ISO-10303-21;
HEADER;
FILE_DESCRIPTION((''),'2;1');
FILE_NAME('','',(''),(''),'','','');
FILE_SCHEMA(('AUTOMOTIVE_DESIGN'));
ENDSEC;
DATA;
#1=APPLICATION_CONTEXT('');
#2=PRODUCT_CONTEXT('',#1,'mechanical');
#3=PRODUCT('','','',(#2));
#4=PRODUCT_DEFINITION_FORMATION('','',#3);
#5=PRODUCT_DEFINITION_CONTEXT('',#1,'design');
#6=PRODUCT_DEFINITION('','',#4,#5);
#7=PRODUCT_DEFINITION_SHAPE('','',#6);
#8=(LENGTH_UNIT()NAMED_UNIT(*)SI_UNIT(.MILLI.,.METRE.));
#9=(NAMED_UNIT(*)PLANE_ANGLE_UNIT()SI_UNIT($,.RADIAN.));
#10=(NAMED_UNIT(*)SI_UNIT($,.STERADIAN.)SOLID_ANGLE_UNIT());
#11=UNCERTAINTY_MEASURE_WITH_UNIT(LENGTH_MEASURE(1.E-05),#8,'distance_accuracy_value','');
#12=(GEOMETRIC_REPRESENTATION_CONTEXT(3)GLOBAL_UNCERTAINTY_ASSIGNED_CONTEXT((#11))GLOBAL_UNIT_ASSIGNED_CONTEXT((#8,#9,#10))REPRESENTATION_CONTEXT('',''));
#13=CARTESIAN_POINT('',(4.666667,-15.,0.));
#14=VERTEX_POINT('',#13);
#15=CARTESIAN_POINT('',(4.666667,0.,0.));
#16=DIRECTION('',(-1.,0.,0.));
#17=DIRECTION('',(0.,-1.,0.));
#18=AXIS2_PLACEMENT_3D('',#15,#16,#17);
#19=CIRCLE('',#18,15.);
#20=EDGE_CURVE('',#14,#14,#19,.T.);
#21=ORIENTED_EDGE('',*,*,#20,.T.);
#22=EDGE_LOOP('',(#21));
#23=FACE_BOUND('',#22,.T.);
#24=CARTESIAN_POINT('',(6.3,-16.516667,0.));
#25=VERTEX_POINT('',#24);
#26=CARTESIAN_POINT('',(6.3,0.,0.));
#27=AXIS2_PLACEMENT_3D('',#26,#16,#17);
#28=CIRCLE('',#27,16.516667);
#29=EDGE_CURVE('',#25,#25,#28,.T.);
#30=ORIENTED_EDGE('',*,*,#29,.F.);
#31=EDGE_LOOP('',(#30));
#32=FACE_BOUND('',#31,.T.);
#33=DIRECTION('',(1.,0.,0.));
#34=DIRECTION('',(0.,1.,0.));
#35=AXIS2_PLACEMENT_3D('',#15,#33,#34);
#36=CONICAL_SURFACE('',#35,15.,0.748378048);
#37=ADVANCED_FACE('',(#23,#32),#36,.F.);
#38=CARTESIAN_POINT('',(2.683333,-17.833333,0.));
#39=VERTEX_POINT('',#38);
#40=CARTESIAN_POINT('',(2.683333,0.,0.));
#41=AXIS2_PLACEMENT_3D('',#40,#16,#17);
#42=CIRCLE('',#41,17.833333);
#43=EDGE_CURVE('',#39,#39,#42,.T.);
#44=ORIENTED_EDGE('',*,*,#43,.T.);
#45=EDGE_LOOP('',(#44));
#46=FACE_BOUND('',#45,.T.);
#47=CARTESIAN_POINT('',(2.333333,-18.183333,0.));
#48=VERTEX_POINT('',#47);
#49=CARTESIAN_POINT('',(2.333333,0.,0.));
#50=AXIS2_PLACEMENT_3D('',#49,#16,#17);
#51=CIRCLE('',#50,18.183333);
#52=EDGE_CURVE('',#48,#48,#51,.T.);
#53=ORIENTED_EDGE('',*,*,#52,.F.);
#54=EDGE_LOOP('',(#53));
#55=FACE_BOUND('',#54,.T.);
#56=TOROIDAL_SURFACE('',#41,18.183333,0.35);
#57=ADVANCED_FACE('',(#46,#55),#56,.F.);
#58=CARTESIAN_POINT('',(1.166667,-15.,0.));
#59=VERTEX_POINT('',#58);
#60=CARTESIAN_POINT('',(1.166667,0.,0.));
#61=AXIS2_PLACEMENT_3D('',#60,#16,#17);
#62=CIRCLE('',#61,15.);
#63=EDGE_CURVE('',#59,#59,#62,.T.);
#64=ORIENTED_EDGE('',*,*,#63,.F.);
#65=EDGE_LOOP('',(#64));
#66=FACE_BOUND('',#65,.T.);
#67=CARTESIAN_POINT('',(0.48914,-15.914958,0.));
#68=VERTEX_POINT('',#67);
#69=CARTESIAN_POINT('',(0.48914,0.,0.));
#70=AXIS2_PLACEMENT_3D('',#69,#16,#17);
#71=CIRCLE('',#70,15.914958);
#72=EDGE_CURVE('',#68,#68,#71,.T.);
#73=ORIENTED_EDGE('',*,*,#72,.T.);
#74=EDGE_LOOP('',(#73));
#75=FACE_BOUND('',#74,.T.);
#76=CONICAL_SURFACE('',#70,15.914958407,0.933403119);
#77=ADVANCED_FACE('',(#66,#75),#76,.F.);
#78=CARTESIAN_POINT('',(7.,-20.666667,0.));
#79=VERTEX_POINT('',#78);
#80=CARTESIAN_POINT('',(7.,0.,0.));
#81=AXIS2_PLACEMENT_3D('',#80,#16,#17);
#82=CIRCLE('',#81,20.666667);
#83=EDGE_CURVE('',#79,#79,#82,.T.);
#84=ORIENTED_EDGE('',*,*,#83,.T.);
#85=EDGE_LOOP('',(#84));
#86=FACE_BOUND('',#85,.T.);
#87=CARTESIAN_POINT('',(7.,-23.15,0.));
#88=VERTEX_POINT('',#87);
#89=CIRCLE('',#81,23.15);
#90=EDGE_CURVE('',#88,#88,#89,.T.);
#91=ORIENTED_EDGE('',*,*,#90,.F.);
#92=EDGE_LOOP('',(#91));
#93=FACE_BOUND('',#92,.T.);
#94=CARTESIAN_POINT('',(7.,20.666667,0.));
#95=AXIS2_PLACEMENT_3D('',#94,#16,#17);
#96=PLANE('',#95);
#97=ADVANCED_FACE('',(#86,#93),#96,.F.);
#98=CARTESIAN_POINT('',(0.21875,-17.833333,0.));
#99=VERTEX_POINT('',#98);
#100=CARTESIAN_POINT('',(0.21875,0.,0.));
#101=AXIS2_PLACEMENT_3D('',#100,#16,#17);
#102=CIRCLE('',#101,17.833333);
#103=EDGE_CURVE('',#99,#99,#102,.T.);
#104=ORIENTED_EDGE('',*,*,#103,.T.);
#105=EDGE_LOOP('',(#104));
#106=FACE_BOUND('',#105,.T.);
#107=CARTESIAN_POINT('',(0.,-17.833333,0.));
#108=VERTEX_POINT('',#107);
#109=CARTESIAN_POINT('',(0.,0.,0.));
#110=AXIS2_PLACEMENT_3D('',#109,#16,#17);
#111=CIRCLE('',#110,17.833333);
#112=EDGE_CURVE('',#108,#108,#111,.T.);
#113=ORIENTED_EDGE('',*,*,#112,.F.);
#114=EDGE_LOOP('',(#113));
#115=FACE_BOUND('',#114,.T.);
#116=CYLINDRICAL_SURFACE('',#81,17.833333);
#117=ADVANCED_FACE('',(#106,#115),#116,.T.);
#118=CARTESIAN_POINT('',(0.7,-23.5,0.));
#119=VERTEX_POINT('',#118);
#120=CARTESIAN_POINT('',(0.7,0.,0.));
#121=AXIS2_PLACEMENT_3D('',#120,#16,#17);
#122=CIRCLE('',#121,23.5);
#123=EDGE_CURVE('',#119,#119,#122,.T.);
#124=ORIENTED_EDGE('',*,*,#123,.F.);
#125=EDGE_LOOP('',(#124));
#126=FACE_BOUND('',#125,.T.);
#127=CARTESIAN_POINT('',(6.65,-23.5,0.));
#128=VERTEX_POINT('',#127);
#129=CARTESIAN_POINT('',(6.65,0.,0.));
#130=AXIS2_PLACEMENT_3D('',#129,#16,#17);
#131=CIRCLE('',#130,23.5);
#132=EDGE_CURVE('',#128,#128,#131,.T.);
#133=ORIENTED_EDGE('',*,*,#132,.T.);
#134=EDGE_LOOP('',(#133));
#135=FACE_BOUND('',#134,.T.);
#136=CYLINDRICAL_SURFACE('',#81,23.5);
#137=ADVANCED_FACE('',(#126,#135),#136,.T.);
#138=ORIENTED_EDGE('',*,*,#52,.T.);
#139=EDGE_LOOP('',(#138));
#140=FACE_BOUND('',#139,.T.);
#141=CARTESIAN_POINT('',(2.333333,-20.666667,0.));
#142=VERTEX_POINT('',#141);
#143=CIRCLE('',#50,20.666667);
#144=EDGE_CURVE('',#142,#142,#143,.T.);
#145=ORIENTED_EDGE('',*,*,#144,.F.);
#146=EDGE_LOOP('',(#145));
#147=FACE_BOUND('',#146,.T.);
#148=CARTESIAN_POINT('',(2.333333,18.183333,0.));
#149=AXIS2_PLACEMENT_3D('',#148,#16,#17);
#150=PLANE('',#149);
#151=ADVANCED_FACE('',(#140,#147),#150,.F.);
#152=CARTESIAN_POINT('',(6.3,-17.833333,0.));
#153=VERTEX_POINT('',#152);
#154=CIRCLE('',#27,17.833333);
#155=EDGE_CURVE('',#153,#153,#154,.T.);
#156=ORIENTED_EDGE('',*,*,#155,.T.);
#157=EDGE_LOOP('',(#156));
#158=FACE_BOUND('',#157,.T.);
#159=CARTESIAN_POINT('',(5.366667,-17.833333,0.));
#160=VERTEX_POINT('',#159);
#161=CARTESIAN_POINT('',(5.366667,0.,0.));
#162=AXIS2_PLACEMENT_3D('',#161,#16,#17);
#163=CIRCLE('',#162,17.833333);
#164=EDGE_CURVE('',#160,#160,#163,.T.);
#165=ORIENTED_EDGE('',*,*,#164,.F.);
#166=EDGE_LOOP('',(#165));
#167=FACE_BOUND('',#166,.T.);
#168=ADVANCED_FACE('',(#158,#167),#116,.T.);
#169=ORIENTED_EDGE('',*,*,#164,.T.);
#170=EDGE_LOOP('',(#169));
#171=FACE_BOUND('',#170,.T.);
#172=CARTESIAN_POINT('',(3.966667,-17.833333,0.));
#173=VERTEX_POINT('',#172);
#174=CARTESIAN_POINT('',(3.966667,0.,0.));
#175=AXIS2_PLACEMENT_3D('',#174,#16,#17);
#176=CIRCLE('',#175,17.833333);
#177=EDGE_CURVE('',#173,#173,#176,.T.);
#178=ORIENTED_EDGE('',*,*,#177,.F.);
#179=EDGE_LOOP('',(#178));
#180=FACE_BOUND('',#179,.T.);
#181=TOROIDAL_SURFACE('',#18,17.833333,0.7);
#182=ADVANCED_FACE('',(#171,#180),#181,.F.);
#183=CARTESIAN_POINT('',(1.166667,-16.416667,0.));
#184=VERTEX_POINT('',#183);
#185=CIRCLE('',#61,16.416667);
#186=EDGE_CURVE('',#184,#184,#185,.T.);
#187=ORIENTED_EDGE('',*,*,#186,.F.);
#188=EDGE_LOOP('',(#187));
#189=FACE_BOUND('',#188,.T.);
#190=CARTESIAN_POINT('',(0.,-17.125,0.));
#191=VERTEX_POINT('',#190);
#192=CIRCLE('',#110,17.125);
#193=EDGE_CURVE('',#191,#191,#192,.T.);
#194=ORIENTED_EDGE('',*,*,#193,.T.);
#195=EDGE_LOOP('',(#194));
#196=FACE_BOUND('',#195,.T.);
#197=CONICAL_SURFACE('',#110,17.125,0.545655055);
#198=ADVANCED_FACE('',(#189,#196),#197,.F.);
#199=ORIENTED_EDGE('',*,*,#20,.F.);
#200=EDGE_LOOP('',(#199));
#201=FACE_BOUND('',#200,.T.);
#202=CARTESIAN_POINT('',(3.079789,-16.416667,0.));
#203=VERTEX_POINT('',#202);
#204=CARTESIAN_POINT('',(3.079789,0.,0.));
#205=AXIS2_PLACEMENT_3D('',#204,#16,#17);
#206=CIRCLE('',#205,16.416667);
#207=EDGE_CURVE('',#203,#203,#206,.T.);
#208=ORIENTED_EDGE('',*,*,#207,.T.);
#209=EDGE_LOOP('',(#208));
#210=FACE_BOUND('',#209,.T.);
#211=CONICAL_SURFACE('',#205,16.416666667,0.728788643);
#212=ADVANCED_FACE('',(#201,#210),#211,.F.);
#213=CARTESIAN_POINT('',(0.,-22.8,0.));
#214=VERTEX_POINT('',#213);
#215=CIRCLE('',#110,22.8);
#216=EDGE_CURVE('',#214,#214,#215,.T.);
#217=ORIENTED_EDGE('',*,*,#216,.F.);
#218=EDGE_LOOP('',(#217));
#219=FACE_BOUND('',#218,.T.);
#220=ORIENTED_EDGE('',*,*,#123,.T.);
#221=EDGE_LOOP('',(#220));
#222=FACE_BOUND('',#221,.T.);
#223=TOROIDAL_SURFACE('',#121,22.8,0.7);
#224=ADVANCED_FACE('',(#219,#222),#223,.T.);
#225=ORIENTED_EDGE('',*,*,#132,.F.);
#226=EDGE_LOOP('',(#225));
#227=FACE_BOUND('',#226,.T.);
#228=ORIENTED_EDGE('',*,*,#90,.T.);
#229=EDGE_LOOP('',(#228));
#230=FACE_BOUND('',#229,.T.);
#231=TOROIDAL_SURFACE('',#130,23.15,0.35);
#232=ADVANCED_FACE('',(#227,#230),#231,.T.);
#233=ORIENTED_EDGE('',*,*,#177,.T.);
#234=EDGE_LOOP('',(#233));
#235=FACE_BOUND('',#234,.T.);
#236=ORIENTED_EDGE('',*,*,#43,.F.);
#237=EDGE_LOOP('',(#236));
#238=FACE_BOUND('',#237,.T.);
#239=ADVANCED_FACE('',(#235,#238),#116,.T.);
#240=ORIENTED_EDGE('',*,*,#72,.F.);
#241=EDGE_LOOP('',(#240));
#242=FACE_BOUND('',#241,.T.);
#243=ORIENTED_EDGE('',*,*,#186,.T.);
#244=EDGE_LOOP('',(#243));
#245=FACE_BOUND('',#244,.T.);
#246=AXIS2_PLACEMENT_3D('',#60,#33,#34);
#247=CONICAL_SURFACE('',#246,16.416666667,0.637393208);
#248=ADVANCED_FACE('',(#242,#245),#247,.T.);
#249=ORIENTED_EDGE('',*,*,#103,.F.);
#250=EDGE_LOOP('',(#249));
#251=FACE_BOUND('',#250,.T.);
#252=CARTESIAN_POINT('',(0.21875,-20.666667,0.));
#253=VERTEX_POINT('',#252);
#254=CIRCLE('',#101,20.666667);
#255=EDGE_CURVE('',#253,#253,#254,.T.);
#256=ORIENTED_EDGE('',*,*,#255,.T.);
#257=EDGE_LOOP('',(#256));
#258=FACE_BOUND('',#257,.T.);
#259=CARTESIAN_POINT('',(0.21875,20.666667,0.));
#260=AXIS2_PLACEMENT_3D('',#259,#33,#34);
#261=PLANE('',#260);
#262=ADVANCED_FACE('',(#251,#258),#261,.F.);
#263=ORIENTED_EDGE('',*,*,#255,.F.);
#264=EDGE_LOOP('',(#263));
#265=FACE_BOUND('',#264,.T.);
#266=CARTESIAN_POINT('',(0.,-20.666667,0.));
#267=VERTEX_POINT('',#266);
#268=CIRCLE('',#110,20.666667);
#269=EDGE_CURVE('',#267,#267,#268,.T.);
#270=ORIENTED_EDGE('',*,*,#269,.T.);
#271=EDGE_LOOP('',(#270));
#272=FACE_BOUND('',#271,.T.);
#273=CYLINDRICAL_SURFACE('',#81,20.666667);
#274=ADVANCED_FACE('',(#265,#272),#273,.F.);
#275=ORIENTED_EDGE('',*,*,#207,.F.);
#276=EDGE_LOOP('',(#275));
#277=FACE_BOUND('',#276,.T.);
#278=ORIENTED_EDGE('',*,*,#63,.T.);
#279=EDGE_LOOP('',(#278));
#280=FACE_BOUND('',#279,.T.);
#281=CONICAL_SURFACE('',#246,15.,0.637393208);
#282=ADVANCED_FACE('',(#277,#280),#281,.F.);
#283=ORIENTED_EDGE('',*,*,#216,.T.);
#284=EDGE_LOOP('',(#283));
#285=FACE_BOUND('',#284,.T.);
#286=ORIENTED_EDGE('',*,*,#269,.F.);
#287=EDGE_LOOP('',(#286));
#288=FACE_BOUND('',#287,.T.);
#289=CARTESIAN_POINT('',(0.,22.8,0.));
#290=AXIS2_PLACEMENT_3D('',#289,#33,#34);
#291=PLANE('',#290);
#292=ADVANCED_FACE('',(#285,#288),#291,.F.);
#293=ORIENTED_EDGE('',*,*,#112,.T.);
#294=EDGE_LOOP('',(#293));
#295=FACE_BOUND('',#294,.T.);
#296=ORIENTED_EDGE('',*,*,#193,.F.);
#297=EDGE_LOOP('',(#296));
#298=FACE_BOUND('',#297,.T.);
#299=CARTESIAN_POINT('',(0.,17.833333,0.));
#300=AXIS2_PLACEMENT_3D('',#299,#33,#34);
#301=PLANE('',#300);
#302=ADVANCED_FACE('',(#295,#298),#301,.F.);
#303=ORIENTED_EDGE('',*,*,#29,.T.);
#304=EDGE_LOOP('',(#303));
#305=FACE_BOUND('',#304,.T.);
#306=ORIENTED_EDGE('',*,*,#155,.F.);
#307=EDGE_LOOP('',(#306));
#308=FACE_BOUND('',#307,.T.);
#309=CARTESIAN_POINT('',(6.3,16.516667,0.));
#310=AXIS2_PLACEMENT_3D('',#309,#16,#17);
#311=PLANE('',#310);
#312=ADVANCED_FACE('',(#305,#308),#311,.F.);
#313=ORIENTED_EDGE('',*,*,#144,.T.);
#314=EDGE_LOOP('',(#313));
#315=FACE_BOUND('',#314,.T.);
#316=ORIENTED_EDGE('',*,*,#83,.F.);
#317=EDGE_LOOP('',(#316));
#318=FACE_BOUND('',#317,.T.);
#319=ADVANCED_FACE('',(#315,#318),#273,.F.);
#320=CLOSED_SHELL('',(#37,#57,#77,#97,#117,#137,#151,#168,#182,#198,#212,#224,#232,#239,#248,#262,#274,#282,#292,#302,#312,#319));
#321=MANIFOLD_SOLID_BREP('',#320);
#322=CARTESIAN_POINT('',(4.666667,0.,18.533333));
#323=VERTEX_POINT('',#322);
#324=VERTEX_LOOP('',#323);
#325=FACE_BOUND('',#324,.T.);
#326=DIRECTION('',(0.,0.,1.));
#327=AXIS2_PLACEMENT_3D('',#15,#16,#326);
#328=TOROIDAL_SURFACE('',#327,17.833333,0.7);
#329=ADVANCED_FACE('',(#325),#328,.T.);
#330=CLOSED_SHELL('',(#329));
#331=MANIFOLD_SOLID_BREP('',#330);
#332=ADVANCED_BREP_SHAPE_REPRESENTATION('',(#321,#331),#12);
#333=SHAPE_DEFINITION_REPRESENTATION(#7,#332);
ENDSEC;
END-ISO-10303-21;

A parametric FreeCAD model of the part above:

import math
import FreeCAD as App
import Part
import Sketcher

doc = App.newDocument("Part")
body = doc.addObject("PartDesign::Body", "Body")

sketch1 = body.newObject("Sketcher::SketchObject", "Sketch")
sketch1.AttachmentSupport = (doc.getObject("XY_Plane"), [""])
sketch1.MapMode = "FlatFace"
sketch1.addGeometry([
    Part.LineSegment(App.Vector(0, 20.67, 0), App.Vector(0.22, 20.67, 0)),
    Part.LineSegment(App.Vector(0.22, 20.67, 0), App.Vector(0.22, 17.83, 0)),
    Part.LineSegment(App.Vector(0.22, 17.83, 0), App.Vector(0, 17.83, 0)),
    Part.LineSegment(App.Vector(0, 17.83, 0), App.Vector(0, 17.12, 0)),
    Part.LineSegment(App.Vector(0, 17.12, 0), App.Vector(1.17, 16.42, 0)),
    Part.LineSegment(App.Vector(1.17, 16.42, 0), App.Vector(0.49, 15.91, 0)),
    Part.LineSegment(App.Vector(0.49, 15.91, 0), App.Vector(1.17, 15, 0)),
    Part.LineSegment(App.Vector(1.17, 15, 0), App.Vector(3.08, 16.42, 0)),
    Part.LineSegment(App.Vector(3.08, 16.42, 0), App.Vector(4.67, 15, 0)),
    Part.LineSegment(App.Vector(4.67, 15, 0), App.Vector(6.3, 16.52, 0)),
    Part.LineSegment(App.Vector(6.3, 16.52, 0), App.Vector(6.3, 17.83, 0)),
    Part.LineSegment(App.Vector(6.3, 17.83, 0), App.Vector(5.37, 17.83, 0)),
    Part.ArcOfCircle(Part.Circle(App.Vector(4.67, 17.83, 0), App.Vector(0, 0, 1), 0.7), math.radians(180), math.radians(360)),
    Part.LineSegment(App.Vector(3.97, 17.83, 0), App.Vector(2.68, 17.83, 0)),
    Part.ArcOfCircle(Part.Circle(App.Vector(2.68, 18.18, 0), App.Vector(0, 0, 1), 0.35), math.radians(-180), math.radians(-90)),
    Part.LineSegment(App.Vector(2.33, 18.18, 0), App.Vector(2.33, 20.67, 0)),
    Part.LineSegment(App.Vector(2.33, 20.67, 0), App.Vector(7, 20.67, 0)),
    Part.LineSegment(App.Vector(7, 20.67, 0), App.Vector(7, 23.15, 0)),
    Part.ArcOfCircle(Part.Circle(App.Vector(6.65, 23.15, 0), App.Vector(0, 0, 1), 0.35), math.radians(0), math.radians(90)),
    Part.LineSegment(App.Vector(6.65, 23.5, 0), App.Vector(0.7, 23.5, 0)),
    Part.ArcOfCircle(Part.Circle(App.Vector(0.7, 22.8, 0), App.Vector(0, 0, 1), 0.7), math.radians(90), math.radians(180)),
    Part.LineSegment(App.Vector(0, 22.8, 0), App.Vector(0, 20.67, 0)),
], False)
sketch1.addConstraint([
    Sketcher.Constraint("Coincident", 0, 2, 1, 1),
    Sketcher.Constraint("Coincident", 1, 2, 2, 1),
    Sketcher.Constraint("Coincident", 2, 2, 3, 1),
    Sketcher.Constraint("Coincident", 3, 2, 4, 1),
    Sketcher.Constraint("Coincident", 4, 2, 5, 1),
    Sketcher.Constraint("Coincident", 5, 2, 6, 1),
    Sketcher.Constraint("Coincident", 6, 2, 7, 1),
    Sketcher.Constraint("Coincident", 7, 2, 8, 1),
    Sketcher.Constraint("Coincident", 8, 2, 9, 1),
    Sketcher.Constraint("Coincident", 9, 2, 10, 1),
    Sketcher.Constraint("Coincident", 10, 2, 11, 1),
    Sketcher.Constraint("Coincident", 11, 2, 12, 2),
    Sketcher.Constraint("Coincident", 12, 1, 13, 1),
    Sketcher.Constraint("Tangent", 13, 2, 14, 2),
    Sketcher.Constraint("Tangent", 14, 1, 15, 1),
    Sketcher.Constraint("Coincident", 15, 2, 16, 1),
    Sketcher.Constraint("Coincident", 16, 2, 17, 1),
    Sketcher.Constraint("Tangent", 17, 2, 18, 1),
    Sketcher.Constraint("Tangent", 18, 2, 19, 1),
    Sketcher.Constraint("Tangent", 19, 2, 20, 1),
    Sketcher.Constraint("Tangent", 20, 2, 21, 1),
    Sketcher.Constraint("Coincident", 21, 2, 0, 1),
    Sketcher.Constraint("Horizontal", 0),
    Sketcher.Constraint("Vertical", 1),
    Sketcher.Constraint("Horizontal", 2),
    Sketcher.Constraint("Vertical", 3),
    Sketcher.Constraint("Vertical", 10),
    Sketcher.Constraint("Horizontal", 11),
    Sketcher.Constraint("Horizontal", 13),
    Sketcher.Constraint("Vertical", 15),
    Sketcher.Constraint("Horizontal", 16),
    Sketcher.Constraint("Vertical", 17),
    Sketcher.Constraint("Horizontal", 19),
    Sketcher.Constraint("Vertical", 21),
    Sketcher.Constraint("Equal", 14, 18),
    Sketcher.Constraint("Equal", 12, 20),
    Sketcher.Constraint("PointOnObject", 2, 2, -2),
    Sketcher.Constraint("PointOnObject", 20, 2, -2),
    Sketcher.Constraint("Perpendicular", 5, 6),
    Sketcher.Constraint("Perpendicular", 6, 7),
    Sketcher.Constraint("Horizontal", 12, 3, 1, 2),
    Sketcher.Constraint("Horizontal", 4, 2, 7, 2),
    Sketcher.Constraint("Horizontal", 6, 2, 8, 2),
    Sketcher.Constraint("Horizontal", 2, 2, 10, 2),
    Sketcher.Constraint("Horizontal", 11, 2, 12, 1),
    Sketcher.Constraint("Horizontal", 0, 2, 15, 2),
    Sketcher.Constraint("Vertical", 4, 2, 6, 2),
    Sketcher.Constraint("Vertical", 12, 3, 8, 2),
    Sketcher.Constraint("Equal", 15, 17),
    Sketcher.Constraint("Radius", 12, 0.7),
    Sketcher.Constraint("Radius", 14, 0.35),
    Sketcher.Constraint("DistanceY", -1, 1, 6, 2, 15.0),
    Sketcher.Constraint("DistanceX", -1, 1, 16, 2, 7.0),
    Sketcher.Constraint("DistanceY", -1, 1, 20, 3, 22.8),
    Sketcher.Constraint("DistanceX", -1, 1, 9, 2, 6.3),
    Sketcher.Constraint("DistanceX", 4, 2, 12, 3, 3.5),
    Sketcher.Constraint("DistanceY", 7, 2, 9, 2, 0.1),
    Sketcher.Constraint("DistanceY", -1, 1, 3, 2, 17.125),
    Sketcher.Constraint("DistanceX", 0, 1, 0, 2, 0.21875),
    Sketcher.Constraint("Distance", 4, 1.364862),
    Sketcher.Constraint("Distance", 5, 0.843062),
    Sketcher.Constraint("DistanceX", 11, 2, 11, 1, 0.933333),
    Sketcher.Constraint("DistanceX", 13, 2, 13, 1, 1.283333),
    Sketcher.Constraint("DistanceY", 1, 2, 1, 1, 2.833333),
])
revolution = body.newObject("PartDesign::Revolution", "Revolution")
revolution.Profile = sketch1
revolution.ReferenceAxis = (sketch1, ["H_Axis"])
revolution.Angle = 360
body2 = doc.addObject("PartDesign::Body", "Body001")

sketch2 = body2.newObject("Sketcher::SketchObject", "Sketch001")
sketch2.AttachmentSupport = (doc.getObject("XY_Plane001"), [""])
sketch2.MapMode = "FlatFace"
sketch2.addGeometry(Part.Circle(App.Vector(4.7, 17.8, 0), App.Vector(0, 0, 1), 0.7), False)
sketch2.addConstraint([
    Sketcher.Constraint("Diameter", 0, 1.4),
    Sketcher.Constraint("DistanceX", -1, 1, 0, 3, 4.666667),
    Sketcher.Constraint("DistanceY", -1, 1, 0, 3, 17.833333),
])
revolution2 = body2.newObject("PartDesign::Revolution", "Revolution001")
revolution2.Profile = sketch2
revolution2.ReferenceAxis = (sketch2, ["H_Axis"])
revolution2.Angle = 360

doc.recompute()
